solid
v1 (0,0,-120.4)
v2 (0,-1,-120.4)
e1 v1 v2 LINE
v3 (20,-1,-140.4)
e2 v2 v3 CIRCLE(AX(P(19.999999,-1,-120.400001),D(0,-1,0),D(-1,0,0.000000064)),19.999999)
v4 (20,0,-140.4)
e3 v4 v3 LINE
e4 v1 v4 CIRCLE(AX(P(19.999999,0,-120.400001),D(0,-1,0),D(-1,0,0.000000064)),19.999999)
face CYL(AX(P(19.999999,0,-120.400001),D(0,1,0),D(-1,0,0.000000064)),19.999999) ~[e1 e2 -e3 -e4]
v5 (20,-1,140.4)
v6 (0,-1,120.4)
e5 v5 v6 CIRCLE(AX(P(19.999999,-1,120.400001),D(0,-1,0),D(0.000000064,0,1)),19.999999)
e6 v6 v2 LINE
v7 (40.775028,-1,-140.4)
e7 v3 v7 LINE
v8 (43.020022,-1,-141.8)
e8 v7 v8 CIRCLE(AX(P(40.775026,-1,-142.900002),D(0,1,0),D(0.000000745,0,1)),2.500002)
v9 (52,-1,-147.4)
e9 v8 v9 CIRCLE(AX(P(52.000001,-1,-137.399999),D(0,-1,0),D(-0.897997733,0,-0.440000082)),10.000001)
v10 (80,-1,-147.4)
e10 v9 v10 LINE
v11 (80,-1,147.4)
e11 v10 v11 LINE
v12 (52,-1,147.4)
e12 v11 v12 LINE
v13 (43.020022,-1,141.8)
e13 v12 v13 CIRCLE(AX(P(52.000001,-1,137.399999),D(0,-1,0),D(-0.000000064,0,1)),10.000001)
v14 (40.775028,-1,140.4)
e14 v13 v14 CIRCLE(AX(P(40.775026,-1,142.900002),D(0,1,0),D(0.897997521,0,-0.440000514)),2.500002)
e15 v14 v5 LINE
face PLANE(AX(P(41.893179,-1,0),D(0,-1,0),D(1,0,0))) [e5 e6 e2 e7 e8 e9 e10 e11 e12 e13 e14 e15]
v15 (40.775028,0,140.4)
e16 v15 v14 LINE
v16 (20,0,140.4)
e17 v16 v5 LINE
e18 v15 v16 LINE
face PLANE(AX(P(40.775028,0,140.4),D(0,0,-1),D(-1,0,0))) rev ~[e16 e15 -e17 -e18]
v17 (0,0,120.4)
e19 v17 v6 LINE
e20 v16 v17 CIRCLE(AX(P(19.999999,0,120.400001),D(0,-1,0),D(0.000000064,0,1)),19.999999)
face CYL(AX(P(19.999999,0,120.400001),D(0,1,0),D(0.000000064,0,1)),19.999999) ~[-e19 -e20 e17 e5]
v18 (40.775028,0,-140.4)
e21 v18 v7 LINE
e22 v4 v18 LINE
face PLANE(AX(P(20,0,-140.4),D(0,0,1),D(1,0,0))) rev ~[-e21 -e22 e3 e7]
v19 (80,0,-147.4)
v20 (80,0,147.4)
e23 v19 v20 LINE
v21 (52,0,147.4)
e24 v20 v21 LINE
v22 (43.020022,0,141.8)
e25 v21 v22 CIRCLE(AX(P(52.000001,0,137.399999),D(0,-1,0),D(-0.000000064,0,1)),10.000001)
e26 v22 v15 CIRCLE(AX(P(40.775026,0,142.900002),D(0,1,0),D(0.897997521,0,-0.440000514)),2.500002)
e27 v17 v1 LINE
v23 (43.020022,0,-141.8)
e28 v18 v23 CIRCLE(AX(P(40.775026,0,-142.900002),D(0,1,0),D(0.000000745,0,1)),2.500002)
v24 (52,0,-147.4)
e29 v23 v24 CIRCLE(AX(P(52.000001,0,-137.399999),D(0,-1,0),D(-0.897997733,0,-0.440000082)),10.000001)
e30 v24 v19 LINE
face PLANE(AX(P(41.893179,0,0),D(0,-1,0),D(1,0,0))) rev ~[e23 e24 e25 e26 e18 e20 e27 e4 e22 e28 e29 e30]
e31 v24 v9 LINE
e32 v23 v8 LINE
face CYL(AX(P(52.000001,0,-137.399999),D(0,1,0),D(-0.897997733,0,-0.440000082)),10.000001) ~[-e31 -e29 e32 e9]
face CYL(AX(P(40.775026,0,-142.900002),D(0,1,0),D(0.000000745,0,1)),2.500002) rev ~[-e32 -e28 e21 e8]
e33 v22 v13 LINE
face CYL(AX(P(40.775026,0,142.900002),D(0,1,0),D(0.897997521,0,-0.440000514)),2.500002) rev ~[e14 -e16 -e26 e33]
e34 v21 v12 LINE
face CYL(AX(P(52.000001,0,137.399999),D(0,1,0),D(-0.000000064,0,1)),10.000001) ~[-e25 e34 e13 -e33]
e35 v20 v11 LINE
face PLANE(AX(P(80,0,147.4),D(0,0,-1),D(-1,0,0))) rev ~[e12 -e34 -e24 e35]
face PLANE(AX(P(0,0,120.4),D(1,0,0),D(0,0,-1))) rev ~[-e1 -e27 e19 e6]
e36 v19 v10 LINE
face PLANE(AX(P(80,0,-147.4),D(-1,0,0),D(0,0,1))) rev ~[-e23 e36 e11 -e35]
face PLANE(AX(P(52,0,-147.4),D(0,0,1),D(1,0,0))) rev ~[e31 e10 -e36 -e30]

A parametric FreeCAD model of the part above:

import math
import FreeCAD as App
import Part
import Sketcher
from FreeCAD import Vector

doc = App.newDocument("Part")
params = doc.addObject("Spreadsheet::Sheet", "Params")
for row, (alias, value) in enumerate([
    ("sketch1_radius", "19.999999 mm"),
    ("sketch1_radius2", "10.000001 mm"),
    ("sketch1_width", "28 mm"),
    ("sketch1_height", "240.8 mm"),
    ("sketch1_height2", "294.8 mm"),
    ("pad1_length", "1 mm"),
], start=1):
    params.set(f"A{row}", alias)
    params.set(f"B{row}", "=" + value)
    params.setAlias(f"B{row}", alias)

body = doc.addObject("PartDesign::Body", "Body")

sketch1 = doc.addObject("Sketcher::SketchObject", "Sketch")
body.addObject(sketch1)
sketch1.AttachmentSupport = (doc.XZ_Plane, [""])
sketch1.MapMode = "FlatFace"
sketch1.addGeometry([
    Part.LineSegment(Vector(0, 120.4, 0), Vector(0, -120.4, 0)),
    Part.ArcOfCircle(Part.Circle(Vector(20, -120.4, 0), Vector(0, 0, 1), 20), math.radians(180), math.radians(270)),
    Part.LineSegment(Vector(20, -140.4, 0), Vector(40.8, -140.4, 0)),
    Part.ArcOfCircle(Part.Circle(Vector(40.8, -142.9, 0), Vector(0, 0, 1), 2.5), math.radians(26), math.radians(90)),
    Part.ArcOfCircle(Part.Circle(Vector(52, -137.4, 0), Vector(0, 0, 1), 10), math.radians(-154), math.radians(-90)),
    Part.LineSegment(Vector(52, -147.4, 0), Vector(80, -147.4, 0)),
    Part.LineSegment(Vector(80, -147.4, 0), Vector(80, 147.4, 0)),
    Part.LineSegment(Vector(80, 147.4, 0), Vector(52, 147.4, 0)),
    Part.ArcOfCircle(Part.Circle(Vector(52, 137.4, 0), Vector(0, 0, 1), 10), math.radians(90), math.radians(154)),
    Part.ArcOfCircle(Part.Circle(Vector(40.8, 142.9, 0), Vector(0, 0, 1), 2.5), math.radians(-90), math.radians(-26)),
    Part.LineSegment(Vector(40.8, 140.4, 0), Vector(20, 140.4, 0)),
    Part.ArcOfCircle(Part.Circle(Vector(20, 120.4, 0), Vector(0, 0, 1), 20), math.radians(90), math.radians(180)),
], False)
sketch1.addConstraint([
    Sketcher.Constraint("Tangent", 0, 2, 1, 1),
    Sketcher.Constraint("Tangent", 1, 2, 2, 1),
    Sketcher.Constraint("Tangent", 2, 2, 3, 2),
    Sketcher.Constraint("Tangent", 3, 1, 4, 1),
    Sketcher.Constraint("Tangent", 4, 2, 5, 1),
    Sketcher.Constraint("Coincident", 5, 2, 6, 1),
    Sketcher.Constraint("Coincident", 6, 2, 7, 1),
    Sketcher.Constraint("Tangent", 7, 2, 8, 1),
    Sketcher.Constraint("Tangent", 8, 2, 9, 2),
    Sketcher.Constraint("Tangent", 9, 1, 10, 1),
    Sketcher.Constraint("Tangent", 10, 2, 11, 1),
    Sketcher.Constraint("Tangent", 11, 2, 0, 1),
    Sketcher.Constraint("Vertical", 0),
    Sketcher.Constraint("Horizontal", 2),
    Sketcher.Constraint("Horizontal", 5),
    Sketcher.Constraint("Vertical", 6),
    Sketcher.Constraint("Horizontal", 7),
    Sketcher.Constraint("Horizontal", 10),
    Sketcher.Constraint("Equal", 4, 8),
    Sketcher.Constraint("Equal", 3, 9),
    Sketcher.Constraint("Equal", 1, 11),
    Sketcher.Constraint("Symmetric", 0, 2, 11, 2, -1, 1),
    Sketcher.Constraint("Symmetric", 4, 3, 8, 3, -1),
    Sketcher.Constraint("Radius", 1, 19.999999),
    Sketcher.Constraint("Radius", 4, 10.000001),
    Sketcher.Constraint("DistanceX", 5, 1, 5, 2, 28.0),
    Sketcher.Constraint("DistanceY", 0, 2, 0, 1, 240.8),
    Sketcher.Constraint("DistanceY", 6, 1, 6, 2, 294.8),
    Sketcher.Constraint("DistanceX", -1, 1, 4, 3, 52.000001),
    Sketcher.Constraint("DistanceY", 3, 1, -1, 1, 141.8),
])
sketch1.setExpression("Constraints[23]", "Params.sketch1_radius")
sketch1.setExpression("Constraints[24]", "Params.sketch1_radius2")
sketch1.setExpression("Constraints[25]", "Params.sketch1_width")
sketch1.setExpression("Constraints[26]", "Params.sketch1_height")
sketch1.setExpression("Constraints[27]", "Params.sketch1_height2")
pad1 = doc.addObject("PartDesign::Pad", "Pad")
body.addObject(pad1)
pad1.Profile = sketch1
pad1.setExpression("Length", "Params.pad1_length")

doc.recompute()
